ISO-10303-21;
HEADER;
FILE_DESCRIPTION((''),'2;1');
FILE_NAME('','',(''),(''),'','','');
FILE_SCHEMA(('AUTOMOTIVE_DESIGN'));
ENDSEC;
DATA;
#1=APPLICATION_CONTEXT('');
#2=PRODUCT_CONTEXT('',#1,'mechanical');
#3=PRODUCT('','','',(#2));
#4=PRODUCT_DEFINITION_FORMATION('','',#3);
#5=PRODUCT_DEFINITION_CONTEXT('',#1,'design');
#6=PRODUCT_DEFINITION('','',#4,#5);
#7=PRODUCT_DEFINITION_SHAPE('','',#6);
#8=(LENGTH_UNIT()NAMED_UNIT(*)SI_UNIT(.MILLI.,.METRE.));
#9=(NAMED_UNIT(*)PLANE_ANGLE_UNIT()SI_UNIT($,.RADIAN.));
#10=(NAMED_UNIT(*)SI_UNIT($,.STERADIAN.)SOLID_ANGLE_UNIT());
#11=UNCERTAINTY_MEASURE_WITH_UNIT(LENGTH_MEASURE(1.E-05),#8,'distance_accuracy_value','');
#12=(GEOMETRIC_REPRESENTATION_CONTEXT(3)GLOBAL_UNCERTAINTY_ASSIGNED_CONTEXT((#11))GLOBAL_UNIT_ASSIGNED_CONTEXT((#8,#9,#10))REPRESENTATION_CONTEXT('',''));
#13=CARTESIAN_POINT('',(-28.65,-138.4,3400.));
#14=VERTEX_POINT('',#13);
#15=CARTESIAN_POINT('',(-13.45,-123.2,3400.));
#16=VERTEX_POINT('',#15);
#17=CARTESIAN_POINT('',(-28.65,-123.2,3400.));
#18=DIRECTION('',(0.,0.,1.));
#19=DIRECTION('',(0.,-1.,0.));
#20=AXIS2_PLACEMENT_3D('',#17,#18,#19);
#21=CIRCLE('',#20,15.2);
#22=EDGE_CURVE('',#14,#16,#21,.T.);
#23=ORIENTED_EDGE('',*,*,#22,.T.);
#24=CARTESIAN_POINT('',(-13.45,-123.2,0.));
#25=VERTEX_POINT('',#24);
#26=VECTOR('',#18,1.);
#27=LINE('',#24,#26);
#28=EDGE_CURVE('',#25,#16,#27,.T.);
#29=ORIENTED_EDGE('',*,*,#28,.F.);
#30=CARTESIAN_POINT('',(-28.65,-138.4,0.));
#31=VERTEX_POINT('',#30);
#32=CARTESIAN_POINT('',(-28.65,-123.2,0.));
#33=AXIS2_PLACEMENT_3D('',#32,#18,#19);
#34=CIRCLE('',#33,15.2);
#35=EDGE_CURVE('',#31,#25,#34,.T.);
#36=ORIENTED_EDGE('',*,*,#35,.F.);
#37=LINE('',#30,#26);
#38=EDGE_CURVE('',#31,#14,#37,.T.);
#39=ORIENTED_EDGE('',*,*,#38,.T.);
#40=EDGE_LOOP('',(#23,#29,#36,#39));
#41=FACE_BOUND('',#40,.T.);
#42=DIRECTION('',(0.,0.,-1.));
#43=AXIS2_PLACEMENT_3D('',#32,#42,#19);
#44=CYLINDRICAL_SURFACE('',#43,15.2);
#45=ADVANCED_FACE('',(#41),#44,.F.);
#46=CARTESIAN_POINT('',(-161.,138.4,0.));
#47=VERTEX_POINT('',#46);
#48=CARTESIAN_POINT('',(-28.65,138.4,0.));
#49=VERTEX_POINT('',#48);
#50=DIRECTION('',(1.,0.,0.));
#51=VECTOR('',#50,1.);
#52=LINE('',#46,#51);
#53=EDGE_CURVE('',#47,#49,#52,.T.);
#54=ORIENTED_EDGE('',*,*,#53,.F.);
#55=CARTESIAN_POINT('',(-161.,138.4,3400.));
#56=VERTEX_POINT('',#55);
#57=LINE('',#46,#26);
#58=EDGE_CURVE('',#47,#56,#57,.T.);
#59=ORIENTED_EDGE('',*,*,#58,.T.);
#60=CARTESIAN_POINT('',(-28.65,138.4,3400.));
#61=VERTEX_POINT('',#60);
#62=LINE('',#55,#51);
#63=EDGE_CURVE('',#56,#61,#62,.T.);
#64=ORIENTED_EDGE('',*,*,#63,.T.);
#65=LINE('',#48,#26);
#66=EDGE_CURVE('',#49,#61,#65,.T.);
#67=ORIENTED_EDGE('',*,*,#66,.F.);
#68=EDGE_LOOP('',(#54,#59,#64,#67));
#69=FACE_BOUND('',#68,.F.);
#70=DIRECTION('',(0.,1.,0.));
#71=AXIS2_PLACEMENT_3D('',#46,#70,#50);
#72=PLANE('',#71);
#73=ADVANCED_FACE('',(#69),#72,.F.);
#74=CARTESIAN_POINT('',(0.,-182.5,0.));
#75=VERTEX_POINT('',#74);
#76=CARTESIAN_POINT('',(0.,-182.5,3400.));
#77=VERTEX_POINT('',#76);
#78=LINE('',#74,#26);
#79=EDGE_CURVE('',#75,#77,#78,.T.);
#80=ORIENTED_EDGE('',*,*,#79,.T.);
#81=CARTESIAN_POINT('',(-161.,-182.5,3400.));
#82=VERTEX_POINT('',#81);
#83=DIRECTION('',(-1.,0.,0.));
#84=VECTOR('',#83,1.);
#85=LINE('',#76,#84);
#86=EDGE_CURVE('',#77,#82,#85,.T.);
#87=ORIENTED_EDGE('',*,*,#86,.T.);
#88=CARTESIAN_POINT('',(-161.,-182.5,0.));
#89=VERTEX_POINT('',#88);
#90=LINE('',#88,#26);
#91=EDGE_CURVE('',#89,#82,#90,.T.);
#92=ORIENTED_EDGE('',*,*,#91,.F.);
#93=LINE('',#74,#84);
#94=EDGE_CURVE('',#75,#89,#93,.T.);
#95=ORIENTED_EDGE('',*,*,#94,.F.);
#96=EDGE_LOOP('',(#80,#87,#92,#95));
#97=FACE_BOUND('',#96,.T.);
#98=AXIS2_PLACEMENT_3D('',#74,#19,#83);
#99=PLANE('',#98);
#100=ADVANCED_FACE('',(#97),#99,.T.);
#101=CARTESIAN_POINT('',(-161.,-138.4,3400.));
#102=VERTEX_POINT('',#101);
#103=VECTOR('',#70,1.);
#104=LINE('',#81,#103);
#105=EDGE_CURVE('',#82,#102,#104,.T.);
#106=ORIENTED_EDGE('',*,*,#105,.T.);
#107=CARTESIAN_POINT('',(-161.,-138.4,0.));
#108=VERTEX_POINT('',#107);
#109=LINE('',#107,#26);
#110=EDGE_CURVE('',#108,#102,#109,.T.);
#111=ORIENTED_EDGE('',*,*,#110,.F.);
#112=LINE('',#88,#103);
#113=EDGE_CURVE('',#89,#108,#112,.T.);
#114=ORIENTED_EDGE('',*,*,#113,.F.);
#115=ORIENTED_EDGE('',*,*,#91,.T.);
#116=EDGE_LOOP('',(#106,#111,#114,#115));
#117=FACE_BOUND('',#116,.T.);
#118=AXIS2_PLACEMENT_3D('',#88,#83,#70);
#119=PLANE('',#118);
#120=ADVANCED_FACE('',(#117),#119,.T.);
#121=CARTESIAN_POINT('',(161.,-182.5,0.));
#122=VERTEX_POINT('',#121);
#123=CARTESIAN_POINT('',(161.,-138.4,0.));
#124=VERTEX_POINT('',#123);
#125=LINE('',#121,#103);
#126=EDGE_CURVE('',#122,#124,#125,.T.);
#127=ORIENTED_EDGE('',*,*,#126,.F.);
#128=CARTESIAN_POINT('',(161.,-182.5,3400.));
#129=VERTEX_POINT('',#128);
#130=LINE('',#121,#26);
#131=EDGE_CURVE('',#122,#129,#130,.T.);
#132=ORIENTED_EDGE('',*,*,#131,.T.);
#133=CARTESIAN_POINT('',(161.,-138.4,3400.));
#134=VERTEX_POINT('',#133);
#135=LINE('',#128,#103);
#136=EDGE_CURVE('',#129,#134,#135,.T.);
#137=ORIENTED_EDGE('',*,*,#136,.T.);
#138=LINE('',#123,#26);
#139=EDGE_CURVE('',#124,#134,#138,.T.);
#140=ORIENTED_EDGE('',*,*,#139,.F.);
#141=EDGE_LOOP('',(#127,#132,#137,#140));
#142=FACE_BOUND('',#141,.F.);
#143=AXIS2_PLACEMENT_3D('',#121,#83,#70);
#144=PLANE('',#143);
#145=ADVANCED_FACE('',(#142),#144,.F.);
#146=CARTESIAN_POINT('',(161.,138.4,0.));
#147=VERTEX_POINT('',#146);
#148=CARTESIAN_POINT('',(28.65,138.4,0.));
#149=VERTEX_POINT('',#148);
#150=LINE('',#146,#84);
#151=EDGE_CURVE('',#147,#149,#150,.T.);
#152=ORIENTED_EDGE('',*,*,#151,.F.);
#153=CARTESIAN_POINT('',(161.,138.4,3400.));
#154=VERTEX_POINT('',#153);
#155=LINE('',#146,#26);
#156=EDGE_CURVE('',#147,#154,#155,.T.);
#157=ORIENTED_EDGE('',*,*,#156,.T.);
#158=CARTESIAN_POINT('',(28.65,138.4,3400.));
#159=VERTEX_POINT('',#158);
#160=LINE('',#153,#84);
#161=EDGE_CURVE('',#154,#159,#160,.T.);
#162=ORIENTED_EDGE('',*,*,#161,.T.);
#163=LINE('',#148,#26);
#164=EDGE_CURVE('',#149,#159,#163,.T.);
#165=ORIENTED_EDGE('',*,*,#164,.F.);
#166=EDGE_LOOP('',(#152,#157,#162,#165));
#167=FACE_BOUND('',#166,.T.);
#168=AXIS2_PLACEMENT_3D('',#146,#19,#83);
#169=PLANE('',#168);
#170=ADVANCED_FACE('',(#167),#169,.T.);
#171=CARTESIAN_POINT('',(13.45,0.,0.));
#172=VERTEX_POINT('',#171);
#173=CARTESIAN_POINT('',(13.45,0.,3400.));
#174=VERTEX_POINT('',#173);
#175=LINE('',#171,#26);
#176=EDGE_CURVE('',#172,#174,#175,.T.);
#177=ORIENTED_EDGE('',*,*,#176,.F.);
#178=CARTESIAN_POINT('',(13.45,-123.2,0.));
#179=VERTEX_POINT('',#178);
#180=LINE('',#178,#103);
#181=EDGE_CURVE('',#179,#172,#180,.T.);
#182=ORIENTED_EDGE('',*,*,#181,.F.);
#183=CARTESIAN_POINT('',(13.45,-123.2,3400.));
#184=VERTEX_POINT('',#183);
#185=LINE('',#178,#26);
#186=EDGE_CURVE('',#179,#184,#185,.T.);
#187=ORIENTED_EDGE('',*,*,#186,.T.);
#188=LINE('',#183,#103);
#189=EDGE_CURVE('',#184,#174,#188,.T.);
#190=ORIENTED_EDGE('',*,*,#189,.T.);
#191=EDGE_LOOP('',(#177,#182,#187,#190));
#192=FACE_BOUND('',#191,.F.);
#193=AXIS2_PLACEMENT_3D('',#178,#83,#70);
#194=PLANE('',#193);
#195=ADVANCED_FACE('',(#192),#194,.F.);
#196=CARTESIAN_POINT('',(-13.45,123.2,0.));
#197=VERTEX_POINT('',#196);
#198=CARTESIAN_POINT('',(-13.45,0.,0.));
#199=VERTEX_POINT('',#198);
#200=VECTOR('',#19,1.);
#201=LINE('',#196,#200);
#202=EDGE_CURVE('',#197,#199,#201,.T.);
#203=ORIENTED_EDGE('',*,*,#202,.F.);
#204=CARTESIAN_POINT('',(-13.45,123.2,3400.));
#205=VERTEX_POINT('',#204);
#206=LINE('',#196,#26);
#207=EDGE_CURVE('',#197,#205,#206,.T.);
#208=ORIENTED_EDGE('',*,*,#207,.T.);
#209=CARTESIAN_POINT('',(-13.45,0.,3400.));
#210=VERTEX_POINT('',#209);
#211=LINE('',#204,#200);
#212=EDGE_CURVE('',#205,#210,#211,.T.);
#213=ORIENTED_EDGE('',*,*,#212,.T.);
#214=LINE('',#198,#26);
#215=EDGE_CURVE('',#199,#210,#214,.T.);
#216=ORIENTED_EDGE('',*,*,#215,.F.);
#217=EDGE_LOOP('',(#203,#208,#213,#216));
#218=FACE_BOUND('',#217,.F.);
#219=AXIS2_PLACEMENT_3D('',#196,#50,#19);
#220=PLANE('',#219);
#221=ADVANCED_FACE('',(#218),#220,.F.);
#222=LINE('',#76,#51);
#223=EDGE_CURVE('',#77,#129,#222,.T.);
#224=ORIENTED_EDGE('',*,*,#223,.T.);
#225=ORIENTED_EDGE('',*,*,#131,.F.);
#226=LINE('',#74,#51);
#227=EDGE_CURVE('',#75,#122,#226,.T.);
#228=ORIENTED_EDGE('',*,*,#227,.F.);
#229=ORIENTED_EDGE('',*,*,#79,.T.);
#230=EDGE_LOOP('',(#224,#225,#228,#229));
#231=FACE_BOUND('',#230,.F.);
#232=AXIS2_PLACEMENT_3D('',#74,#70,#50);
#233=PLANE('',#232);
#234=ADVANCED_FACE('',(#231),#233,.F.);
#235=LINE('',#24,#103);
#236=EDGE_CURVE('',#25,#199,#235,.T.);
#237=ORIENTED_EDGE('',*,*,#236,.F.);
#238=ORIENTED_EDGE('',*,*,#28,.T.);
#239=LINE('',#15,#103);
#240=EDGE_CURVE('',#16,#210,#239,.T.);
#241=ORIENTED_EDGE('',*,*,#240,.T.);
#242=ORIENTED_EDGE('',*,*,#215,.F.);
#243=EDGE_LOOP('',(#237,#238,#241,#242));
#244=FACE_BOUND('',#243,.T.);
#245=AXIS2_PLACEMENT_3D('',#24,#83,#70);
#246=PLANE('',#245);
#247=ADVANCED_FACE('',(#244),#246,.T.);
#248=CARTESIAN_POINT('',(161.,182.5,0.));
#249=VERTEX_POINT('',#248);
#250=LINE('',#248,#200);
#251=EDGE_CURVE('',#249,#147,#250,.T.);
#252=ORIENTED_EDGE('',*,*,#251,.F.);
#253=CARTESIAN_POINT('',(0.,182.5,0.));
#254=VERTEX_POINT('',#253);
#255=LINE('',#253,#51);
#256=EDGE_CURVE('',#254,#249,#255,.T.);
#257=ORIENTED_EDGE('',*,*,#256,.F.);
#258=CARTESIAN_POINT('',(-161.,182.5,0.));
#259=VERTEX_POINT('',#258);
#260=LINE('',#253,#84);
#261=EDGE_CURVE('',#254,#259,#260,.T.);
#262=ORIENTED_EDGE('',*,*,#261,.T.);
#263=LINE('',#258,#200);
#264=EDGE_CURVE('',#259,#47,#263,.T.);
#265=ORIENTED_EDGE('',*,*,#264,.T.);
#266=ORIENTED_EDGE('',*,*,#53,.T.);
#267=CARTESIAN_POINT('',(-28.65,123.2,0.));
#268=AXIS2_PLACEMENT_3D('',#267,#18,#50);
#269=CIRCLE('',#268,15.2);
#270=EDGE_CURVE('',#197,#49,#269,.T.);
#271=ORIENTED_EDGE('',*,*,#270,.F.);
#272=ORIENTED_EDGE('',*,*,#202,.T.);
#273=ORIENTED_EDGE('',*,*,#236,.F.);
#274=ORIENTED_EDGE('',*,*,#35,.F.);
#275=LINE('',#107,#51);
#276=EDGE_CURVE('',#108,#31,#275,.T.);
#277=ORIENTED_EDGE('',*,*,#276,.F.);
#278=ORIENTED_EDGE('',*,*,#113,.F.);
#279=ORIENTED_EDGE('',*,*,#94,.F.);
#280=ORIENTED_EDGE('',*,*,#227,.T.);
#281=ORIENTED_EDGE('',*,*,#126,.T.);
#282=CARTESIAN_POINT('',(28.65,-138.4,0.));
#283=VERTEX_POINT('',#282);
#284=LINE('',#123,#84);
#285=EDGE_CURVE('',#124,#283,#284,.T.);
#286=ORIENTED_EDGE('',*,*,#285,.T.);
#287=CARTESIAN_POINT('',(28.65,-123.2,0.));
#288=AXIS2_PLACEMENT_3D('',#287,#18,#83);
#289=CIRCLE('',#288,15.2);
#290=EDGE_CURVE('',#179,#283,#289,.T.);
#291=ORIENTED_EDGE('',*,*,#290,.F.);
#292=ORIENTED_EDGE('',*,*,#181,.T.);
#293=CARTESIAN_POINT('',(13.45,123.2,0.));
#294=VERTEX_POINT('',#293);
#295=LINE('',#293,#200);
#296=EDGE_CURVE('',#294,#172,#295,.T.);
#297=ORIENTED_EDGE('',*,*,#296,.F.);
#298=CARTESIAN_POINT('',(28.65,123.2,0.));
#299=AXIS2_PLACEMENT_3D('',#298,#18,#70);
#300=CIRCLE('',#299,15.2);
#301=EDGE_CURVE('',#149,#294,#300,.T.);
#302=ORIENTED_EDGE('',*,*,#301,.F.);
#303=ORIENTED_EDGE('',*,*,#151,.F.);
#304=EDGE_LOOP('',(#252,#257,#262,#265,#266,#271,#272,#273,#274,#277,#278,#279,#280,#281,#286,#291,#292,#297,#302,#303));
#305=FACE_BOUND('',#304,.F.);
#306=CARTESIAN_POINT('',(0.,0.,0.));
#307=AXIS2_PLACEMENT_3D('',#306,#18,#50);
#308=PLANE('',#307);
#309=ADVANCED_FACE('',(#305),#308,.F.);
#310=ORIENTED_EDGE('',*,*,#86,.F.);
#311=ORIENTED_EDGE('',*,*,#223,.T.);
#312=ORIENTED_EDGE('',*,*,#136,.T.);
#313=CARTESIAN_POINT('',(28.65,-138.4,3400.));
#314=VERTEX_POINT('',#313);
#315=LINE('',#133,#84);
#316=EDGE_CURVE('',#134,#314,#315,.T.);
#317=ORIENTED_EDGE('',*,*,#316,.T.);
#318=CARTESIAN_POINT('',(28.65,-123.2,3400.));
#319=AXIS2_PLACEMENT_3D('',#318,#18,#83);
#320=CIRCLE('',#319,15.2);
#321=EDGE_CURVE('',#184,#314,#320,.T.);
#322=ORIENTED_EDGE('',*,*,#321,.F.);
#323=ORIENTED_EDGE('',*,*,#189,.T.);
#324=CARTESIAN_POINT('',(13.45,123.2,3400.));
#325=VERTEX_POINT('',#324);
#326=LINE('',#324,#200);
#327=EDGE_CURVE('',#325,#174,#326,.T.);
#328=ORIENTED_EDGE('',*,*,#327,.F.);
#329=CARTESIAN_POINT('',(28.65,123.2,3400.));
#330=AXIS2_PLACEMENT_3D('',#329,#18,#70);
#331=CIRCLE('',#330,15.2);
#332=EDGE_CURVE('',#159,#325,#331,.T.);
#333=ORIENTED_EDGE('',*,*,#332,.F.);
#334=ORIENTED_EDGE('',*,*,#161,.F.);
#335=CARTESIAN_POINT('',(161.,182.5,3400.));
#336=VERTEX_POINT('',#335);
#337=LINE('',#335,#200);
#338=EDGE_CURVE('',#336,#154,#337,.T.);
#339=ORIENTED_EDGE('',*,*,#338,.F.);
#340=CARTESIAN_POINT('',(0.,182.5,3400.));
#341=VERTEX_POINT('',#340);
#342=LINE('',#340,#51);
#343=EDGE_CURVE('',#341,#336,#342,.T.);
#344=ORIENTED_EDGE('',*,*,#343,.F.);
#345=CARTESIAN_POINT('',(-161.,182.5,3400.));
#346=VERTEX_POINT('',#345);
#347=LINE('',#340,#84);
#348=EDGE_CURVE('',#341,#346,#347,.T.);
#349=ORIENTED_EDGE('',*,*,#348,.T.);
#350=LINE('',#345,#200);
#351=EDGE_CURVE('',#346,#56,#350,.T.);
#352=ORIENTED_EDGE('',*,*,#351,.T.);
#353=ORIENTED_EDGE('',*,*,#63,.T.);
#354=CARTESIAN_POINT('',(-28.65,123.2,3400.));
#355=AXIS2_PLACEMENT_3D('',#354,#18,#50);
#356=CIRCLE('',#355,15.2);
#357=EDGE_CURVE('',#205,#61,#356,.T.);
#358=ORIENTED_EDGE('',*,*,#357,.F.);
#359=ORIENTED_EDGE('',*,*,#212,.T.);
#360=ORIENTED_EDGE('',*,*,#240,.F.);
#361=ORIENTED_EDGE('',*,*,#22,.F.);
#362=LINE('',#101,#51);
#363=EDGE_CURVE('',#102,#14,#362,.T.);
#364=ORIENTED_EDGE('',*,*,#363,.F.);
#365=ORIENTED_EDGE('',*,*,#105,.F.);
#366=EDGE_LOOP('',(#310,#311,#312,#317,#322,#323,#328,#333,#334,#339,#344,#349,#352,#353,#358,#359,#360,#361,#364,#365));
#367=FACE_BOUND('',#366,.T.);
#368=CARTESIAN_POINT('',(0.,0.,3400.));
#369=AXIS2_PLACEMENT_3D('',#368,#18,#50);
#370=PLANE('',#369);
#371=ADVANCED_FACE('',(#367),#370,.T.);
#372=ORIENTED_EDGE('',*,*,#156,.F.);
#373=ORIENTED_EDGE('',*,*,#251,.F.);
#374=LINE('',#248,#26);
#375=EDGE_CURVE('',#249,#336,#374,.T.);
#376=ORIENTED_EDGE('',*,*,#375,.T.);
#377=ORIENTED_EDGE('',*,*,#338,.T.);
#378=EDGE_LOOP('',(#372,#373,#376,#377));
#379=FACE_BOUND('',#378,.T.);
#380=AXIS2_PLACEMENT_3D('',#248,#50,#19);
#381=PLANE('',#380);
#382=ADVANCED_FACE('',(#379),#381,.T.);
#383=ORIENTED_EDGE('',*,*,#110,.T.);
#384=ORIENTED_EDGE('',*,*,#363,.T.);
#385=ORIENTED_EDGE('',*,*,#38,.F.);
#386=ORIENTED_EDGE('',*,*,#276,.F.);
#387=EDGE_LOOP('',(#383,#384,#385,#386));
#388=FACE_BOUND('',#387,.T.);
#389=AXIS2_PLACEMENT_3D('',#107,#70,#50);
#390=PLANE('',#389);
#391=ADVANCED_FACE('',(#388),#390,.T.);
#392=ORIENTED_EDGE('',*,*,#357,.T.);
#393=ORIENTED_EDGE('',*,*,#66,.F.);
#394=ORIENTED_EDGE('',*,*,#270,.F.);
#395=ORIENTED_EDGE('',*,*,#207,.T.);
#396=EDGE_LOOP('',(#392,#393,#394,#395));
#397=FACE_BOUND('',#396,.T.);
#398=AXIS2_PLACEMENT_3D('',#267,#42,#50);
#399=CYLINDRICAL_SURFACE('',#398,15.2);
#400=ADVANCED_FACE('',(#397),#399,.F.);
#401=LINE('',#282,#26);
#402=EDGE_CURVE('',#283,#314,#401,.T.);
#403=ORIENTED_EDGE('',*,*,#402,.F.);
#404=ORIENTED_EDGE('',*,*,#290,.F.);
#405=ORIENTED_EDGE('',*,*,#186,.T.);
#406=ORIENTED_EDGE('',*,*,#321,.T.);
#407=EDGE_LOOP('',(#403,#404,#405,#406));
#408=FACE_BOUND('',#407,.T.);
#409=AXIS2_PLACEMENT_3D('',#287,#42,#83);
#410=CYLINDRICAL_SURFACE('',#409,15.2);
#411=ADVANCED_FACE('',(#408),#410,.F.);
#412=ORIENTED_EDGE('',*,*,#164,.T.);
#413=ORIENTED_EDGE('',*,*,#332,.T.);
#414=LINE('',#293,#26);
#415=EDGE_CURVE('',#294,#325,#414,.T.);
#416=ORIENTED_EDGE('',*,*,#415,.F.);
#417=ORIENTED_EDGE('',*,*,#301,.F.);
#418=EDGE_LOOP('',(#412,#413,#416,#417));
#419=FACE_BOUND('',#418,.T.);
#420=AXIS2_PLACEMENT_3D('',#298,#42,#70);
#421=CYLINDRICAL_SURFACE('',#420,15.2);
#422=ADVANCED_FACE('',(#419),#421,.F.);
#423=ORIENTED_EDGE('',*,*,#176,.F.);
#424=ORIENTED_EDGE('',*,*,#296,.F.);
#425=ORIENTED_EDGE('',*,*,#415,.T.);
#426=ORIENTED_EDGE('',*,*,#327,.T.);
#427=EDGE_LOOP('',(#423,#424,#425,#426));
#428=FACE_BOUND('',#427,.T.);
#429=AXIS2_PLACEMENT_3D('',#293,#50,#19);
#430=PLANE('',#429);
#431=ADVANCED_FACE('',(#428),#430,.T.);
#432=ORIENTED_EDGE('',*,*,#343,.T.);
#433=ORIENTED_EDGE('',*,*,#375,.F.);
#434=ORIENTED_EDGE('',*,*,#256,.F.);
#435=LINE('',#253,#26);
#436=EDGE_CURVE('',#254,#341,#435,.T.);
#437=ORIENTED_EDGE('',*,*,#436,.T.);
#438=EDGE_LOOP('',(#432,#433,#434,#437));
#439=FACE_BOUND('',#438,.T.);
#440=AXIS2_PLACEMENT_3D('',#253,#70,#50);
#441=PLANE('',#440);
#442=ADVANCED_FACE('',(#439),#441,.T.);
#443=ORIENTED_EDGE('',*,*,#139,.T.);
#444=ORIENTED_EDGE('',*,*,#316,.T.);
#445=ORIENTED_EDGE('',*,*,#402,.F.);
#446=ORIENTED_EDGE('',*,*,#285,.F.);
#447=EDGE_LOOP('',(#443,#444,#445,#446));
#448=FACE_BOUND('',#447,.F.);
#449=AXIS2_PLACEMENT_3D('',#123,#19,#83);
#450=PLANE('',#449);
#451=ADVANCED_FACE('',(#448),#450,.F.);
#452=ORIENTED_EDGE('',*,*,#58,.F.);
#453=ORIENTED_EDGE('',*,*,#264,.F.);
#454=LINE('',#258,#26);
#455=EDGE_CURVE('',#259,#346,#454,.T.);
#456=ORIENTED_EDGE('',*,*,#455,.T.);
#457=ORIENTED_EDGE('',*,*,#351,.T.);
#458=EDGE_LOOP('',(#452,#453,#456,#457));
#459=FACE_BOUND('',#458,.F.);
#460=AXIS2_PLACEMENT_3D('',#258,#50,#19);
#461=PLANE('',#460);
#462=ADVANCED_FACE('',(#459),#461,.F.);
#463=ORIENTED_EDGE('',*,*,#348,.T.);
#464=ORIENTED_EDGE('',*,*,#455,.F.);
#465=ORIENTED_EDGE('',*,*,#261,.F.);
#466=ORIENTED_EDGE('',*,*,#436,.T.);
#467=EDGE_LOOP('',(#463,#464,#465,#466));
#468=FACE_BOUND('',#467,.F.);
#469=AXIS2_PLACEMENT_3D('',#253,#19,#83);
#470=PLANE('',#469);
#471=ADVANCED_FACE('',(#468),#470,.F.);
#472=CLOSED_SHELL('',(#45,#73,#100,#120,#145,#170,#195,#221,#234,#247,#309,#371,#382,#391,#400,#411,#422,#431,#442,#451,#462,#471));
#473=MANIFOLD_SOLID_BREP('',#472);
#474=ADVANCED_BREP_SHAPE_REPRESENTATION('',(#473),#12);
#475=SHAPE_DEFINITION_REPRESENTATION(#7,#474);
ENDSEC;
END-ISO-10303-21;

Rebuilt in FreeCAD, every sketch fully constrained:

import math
import FreeCAD as App
import Part
import Sketcher

V = App.Vector

doc = App.newDocument("Part")
body = doc.addObject("PartDesign::Body", "Body")

# Sketch on XY plane
sketch1 = doc.addObject("Sketcher::SketchObject", "Sketch")
body.addObject(sketch1)
sketch1.AttachmentSupport = (doc.XY_Plane, [""])
sketch1.MapMode = "FlatFace"
sketch1.addGeometry([
    Part.LineSegment(V(-161, -138, 0), V(-161, -182, 0)),  # 0
    Part.LineSegment(V(-161, -182, 0), V(161, -182, 0)),  # 1
    Part.LineSegment(V(161, -182, 0), V(161, -138, 0)),  # 2
    Part.LineSegment(V(161, -138, 0), V(29, -138, 0)),  # 3
    Part.ArcOfCircle(Part.Circle(V(29, -123, 0), V(0, 0, 1), 15), math.radians(180), math.radians(270)),  # 4
    Part.LineSegment(V(13, -123, 0), V(13, 123, 0)),  # 5
    Part.ArcOfCircle(Part.Circle(V(29, 123, 0), V(0, 0, 1), 15), math.radians(90), math.radians(180)),  # 6
    Part.LineSegment(V(29, 138, 0), V(161, 138, 0)),  # 7
    Part.LineSegment(V(161, 138, 0), V(161, 182, 0)),  # 8
    Part.LineSegment(V(161, 182, 0), V(-161, 182, 0)),  # 9
    Part.LineSegment(V(-161, 182, 0), V(-161, 138, 0)),  # 10
    Part.LineSegment(V(-161, 138, 0), V(-29, 138, 0)),  # 11
    Part.ArcOfCircle(Part.Circle(V(-29, 123, 0), V(0, 0, 1), 15), math.radians(0), math.radians(90)),  # 12
    Part.LineSegment(V(-13, 123, 0), V(-13, -123, 0)),  # 13
    Part.ArcOfCircle(Part.Circle(V(-29, -123, 0), V(0, 0, 1), 15), math.radians(-90), math.radians(0)),  # 14
    Part.LineSegment(V(-29, -138, 0), V(-161, -138, 0)),  # 15
], False)
sketch1.addConstraint([
    Sketcher.Constraint("Coincident", 0, 2, 1, 1),
    Sketcher.Constraint("Coincident", 1, 2, 2, 1),
    Sketcher.Constraint("Coincident", 2, 2, 3, 1),
    Sketcher.Constraint("Tangent", 3, 2, 4, 2),
    Sketcher.Constraint("Tangent", 4, 1, 5, 1),
    Sketcher.Constraint("Tangent", 5, 2, 6, 2),
    Sketcher.Constraint("Tangent", 6, 1, 7, 1),
    Sketcher.Constraint("Coincident", 7, 2, 8, 1),
    Sketcher.Constraint("Coincident", 8, 2, 9, 1),
    Sketcher.Constraint("Coincident", 9, 2, 10, 1),
    Sketcher.Constraint("Coincident", 10, 2, 11, 1),
    Sketcher.Constraint("Tangent", 11, 2, 12, 2),
    Sketcher.Constraint("Tangent", 12, 1, 13, 1),
    Sketcher.Constraint("Tangent", 13, 2, 14, 2),
    Sketcher.Constraint("Tangent", 14, 1, 15, 1),
    Sketcher.Constraint("Coincident", 15, 2, 0, 1),
    Sketcher.Constraint("Vertical", 0),
    Sketcher.Constraint("Horizontal", 1),
    Sketcher.Constraint("Vertical", 2),
    Sketcher.Constraint("Horizontal", 3),
    Sketcher.Constraint("Vertical", 5),
    Sketcher.Constraint("Horizontal", 7),
    Sketcher.Constraint("Vertical", 8),
    Sketcher.Constraint("Horizontal", 9),
    Sketcher.Constraint("Vertical", 10),
    Sketcher.Constraint("Horizontal", 11),
    Sketcher.Constraint("Vertical", 13),
    Sketcher.Constraint("Horizontal", 15),
    Sketcher.Constraint("Equal", 4, 6),
    Sketcher.Constraint("Equal", 6, 12),
    Sketcher.Constraint("Equal", 12, 14),
    Sketcher.Constraint("Symmetric", 4, 3, 12, 3, -1, 1),
    Sketcher.Constraint("Symmetric", 0, 2, 8, 2, -1, 1),
    Sketcher.Constraint("Symmetric", 7, 2, 10, 2, -2),
    Sketcher.Constraint("Symmetric", 2, 2, 15, 2, -2),
    Sketcher.Constraint("Radius", 4, 15.2),
    Sketcher.Constraint("DistanceY", 0, 2, 0, 1, 44.1),
    Sketcher.Constraint("DistanceX", 0, 2, -1, 1, 161.0),
    Sketcher.Constraint("DistanceY", 0, 2, -1, 1, 182.5),
    Sketcher.Constraint("DistanceX", -1, 1, 4, 1, 13.45),
])
pad1 = doc.addObject("PartDesign::Pad", "Pad")
body.addObject(pad1)
pad1.Profile = sketch1
pad1.Length = 3400

doc.recompute()
